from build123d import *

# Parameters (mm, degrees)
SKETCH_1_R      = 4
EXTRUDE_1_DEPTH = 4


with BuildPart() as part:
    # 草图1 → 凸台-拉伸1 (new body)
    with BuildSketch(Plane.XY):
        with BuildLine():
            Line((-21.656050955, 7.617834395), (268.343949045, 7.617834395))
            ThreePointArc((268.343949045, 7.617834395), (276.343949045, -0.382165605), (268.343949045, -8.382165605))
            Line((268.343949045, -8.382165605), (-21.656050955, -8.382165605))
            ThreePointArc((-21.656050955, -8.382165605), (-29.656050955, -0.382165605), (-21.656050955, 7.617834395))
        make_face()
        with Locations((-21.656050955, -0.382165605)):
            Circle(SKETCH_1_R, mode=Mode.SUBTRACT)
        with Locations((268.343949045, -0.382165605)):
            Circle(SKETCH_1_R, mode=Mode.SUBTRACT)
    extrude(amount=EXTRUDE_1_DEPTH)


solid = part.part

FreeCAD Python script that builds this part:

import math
import FreeCAD as App
import Part
import Sketcher

V = App.Vector

doc = App.newDocument("Part")
params = doc.addObject("Spreadsheet::Sheet", "Params")
for row, (alias, value) in enumerate([
    ("sketch1_diameter", "8 mm"),
    ("sketch1_radius", "8 mm"),
    ("sketch1_width", "290 mm"),
    ("pad1_length", "4 mm"),
], start=1):
    params.set(f"A{row}", alias)
    params.set(f"B{row}", "=" + value)
    params.setAlias(f"B{row}", alias)

body = doc.addObject("PartDesign::Body", "Body")

sketch1 = doc.addObject("Sketcher::SketchObject", "Sketch")
body.addObject(sketch1)
sketch1.AttachmentSupport = (doc.XY_Plane, [""])
sketch1.MapMode = "FlatFace"
sketch1.addGeometry(Part.LineSegment(V(268.3, 7.6, 0), V(-21.7, 7.6, 0)), False)
sketch1.addGeometry(Part.ArcOfCircle(Part.Circle(V(-21.7, -0.4, 0), V(0, 0, 1), 8), math.radians(90), math.radians(270)), False)
sketch1.addGeometry(Part.LineSegment(V(-21.7, -8.4, 0), V(268.3, -8.4, 0)), False)
sketch1.addGeometry(Part.ArcOfCircle(Part.Circle(V(268.3, -0.4, 0), V(0, 0, 1), 8), math.radians(-90), math.radians(90)), False)
sketch1.addGeometry(Part.Circle(V(268.3, -0.4, 0), V(0, 0, 1), 4), False)
sketch1.addGeometry(Part.Circle(V(-21.7, -0.4, 0), V(0, 0, 1), 4), False)
sketch1.addConstraint(Sketcher.Constraint("Tangent", 0, 2, 1, 1))
sketch1.addConstraint(Sketcher.Constraint("Tangent", 1, 2, 2, 1))
sketch1.addConstraint(Sketcher.Constraint("Tangent", 2, 2, 3, 1))
sketch1.addConstraint(Sketcher.Constraint("Tangent", 3, 2, 0, 1))
sketch1.addConstraint(Sketcher.Constraint("Horizontal", 0))
sketch1.addConstraint(Sketcher.Constraint("Horizontal", 2))
sketch1.addConstraint(Sketcher.Constraint("Coincident", 4, 3, 3, 3))
sketch1.addConstraint(Sketcher.Constraint("Coincident", 5, 3, 1, 3))
sketch1.addConstraint(Sketcher.Constraint("Equal", 4, 5))
sketch1.addConstraint(Sketcher.Constraint("Diameter", 4, 8.0))
sketch1.addConstraint(Sketcher.Constraint("Radius", 1, 8.0))
sketch1.addConstraint(Sketcher.Constraint("DistanceX", 0, 2, 0, 1, 290.0))
sketch1.addConstraint(Sketcher.Constraint("DistanceX", 1, 3, -1, 1, 21.656051))
sketch1.addConstraint(Sketcher.Constraint("DistanceY", 1, 3, -1, 1, 0.382166))
sketch1.setExpression("Constraints[9]", "Params.sketch1_diameter")
sketch1.setExpression("Constraints[10]", "Params.sketch1_radius")
sketch1.setExpression("Constraints[11]", "Params.sketch1_width")
pad1 = doc.addObject("PartDesign::Pad", "Pad")
body.addObject(pad1)
pad1.Profile = sketch1
pad1.setExpression("Length", "Params.pad1_length")

doc.recompute()
